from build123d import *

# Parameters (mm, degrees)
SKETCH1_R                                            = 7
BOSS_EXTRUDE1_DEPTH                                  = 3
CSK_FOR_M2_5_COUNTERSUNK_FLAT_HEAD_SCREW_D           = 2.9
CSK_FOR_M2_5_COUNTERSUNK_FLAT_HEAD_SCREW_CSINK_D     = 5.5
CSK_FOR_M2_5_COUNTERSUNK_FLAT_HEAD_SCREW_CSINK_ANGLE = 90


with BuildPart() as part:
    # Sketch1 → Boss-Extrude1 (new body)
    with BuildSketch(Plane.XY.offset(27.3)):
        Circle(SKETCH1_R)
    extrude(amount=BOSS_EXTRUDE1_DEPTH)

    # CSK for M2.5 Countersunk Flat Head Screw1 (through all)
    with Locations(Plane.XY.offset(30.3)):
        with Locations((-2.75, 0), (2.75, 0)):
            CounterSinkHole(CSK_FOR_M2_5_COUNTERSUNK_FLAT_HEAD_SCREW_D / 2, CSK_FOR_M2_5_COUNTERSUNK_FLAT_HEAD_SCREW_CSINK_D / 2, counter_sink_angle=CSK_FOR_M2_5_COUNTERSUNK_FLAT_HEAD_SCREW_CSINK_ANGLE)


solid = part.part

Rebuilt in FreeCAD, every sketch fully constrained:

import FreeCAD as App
import Part
import Sketcher
from FreeCAD import Vector
Q = App.Units.Quantity

doc = App.newDocument("Part")
params = doc.addObject("Spreadsheet::Sheet", "Params")
for row, (alias, value) in enumerate([
    ("sketch1_diameter", "14 mm"),
    ("pad1_length", "3 mm"),
    ("sketch2_diameter", "2.9 mm"),
    ("hole_diameter", "2.9 mm"),
    ("hole_csink_diameter", "5.5 mm"),
], start=1):
    params.set(f"A{row}", alias)
    params.set(f"B{row}", "=" + value)
    params.setAlias(f"B{row}", alias)

body = doc.addObject("PartDesign::Body", "Body")

sketch1 = body.newObject("Sketcher::SketchObject", "Sketch")
sketch1.AttachmentSupport = (doc.getObject("XY_Plane"), [""])
sketch1.MapMode = "FlatFace"
sketch1.AttachmentOffset = App.Placement(Vector(0, 0, 27.3), App.Rotation())
sketch1.addGeometry(Part.Circle(Vector(0, 0, 0), Vector(0, 0, 1), 7), False)
sketch1.addConstraint(Sketcher.Constraint("Coincident", 0, 3, -1, 1))
sketch1.addConstraint(Sketcher.Constraint("Diameter", 0, Q("14 mm")))
sketch1.setExpression("Constraints[1]", "Params.sketch1_diameter")
pad1 = body.newObject("PartDesign::Pad", "Pad")
pad1.Profile = sketch1
pad1.setExpression("Length", "Params.pad1_length")

sketch2 = body.newObject("Sketcher::SketchObject", "Sketch001")
sketch2.AttachmentSupport = (doc.getObject("XY_Plane"), [""])
sketch2.MapMode = "FlatFace"
sketch2.AttachmentOffset = App.Placement(Vector(0, 0, 30.3), App.Rotation())
sketch2.addGeometry(Part.Circle(Vector(-2.8, 0, 0), Vector(0, 0, 1), 1.4), False)
sketch2.addGeometry(Part.Circle(Vector(2.8, 0, 0), Vector(0, 0, 1), 1.4), False)
sketch2.addConstraint(Sketcher.Constraint("Equal", 0, 1))
sketch2.addConstraint(Sketcher.Constraint("Symmetric", 0, 3, 1, 3, -1, 1))
sketch2.addConstraint(Sketcher.Constraint("PointOnObject", 0, 3, -1))
sketch2.addConstraint(Sketcher.Constraint("Diameter", 0, Q("2.9 mm")))
sketch2.addConstraint(Sketcher.Constraint("DistanceX", 0, 3, 1, 3, Q("5.5 mm")))
sketch2.setExpression("Constraints[3]", "Params.sketch2_diameter")
doc.recompute()
hole = body.newObject("PartDesign::Hole", "Hole")
hole.Profile = sketch2
hole.ThreadType = "None"
hole.setExpression("Diameter", "Params.hole_diameter")
hole.DepthType = "ThroughAll"
hole.HoleCutType = "Countersink"
hole.setExpression("HoleCutDiameter", "Params.hole_csink_diameter")
hole.HoleCutCountersinkAngle = 90

doc.recompute()
